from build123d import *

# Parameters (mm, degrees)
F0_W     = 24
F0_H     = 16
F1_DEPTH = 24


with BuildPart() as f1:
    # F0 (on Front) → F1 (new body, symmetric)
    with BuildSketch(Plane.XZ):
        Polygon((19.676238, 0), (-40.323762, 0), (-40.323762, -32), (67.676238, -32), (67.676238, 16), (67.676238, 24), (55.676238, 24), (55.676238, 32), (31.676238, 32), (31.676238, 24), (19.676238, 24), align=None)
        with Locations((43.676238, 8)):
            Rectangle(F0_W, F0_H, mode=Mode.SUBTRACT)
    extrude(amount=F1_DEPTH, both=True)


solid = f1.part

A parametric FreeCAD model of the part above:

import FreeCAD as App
import Part
import Sketcher


def add_polygon(sketch, points):
    """Adds a closed chain of lines whose ends are joined by coincident constraints."""
    first, n = sketch.GeometryCount, len(points)
    for a, b in zip(points, points[1:] + points[:1]):
        sketch.addGeometry(Part.LineSegment(App.Vector(*a, 0), App.Vector(*b, 0)), False)
    for i in range(n):
        sketch.addConstraint(Sketcher.Constraint("Coincident", first + i, 2, first + (i + 1) % n, 1))

doc = App.newDocument("Part")
params = doc.addObject("Spreadsheet::Sheet", "Params")
for row, (alias, value) in enumerate([
    ("sketch1_width", "60 mm"),
    ("sketch1_width2", "108 mm"),
    ("sketch1_width3", "12 mm"),
    ("sketch1_height", "32 mm"),
    ("sketch1_height2", "8 mm"),
    ("pad1_length", "48 mm"),
], start=1):
    params.set(f"A{row}", alias)
    params.set(f"B{row}", "=" + value)
    params.setAlias(f"B{row}", alias)

body = doc.addObject("PartDesign::Body", "Body")

# Sketch on XZ plane
sketch1 = body.newObject("Sketcher::SketchObject", "Sketch")
sketch1.AttachmentSupport = (doc.getObject("XZ_Plane"), [""])
sketch1.MapMode = "FlatFace"
add_polygon(sketch1, [(19.676238, 0), (-40.323762, 0), (-40.323762, -32), (67.676238, -32), (67.676238, 24), (55.676238, 24), (55.676238, 32), (31.676238, 32), (31.676238, 24), (19.676238, 24)])  # lines 0-9
add_polygon(sketch1, [(55.676238, 0), (31.676238, 0), (31.676238, 16), (55.676238, 16)])  # lines 10-13
sketch1.addConstraint(Sketcher.Constraint("Horizontal", 0))
sketch1.addConstraint(Sketcher.Constraint("Vertical", 1))
sketch1.addConstraint(Sketcher.Constraint("Horizontal", 2))
sketch1.addConstraint(Sketcher.Constraint("Vertical", 3))
sketch1.addConstraint(Sketcher.Constraint("Horizontal", 4))
sketch1.addConstraint(Sketcher.Constraint("Vertical", 5))
sketch1.addConstraint(Sketcher.Constraint("Horizontal", 6))
sketch1.addConstraint(Sketcher.Constraint("Vertical", 7))
sketch1.addConstraint(Sketcher.Constraint("Horizontal", 8))
sketch1.addConstraint(Sketcher.Constraint("Vertical", 9))
sketch1.addConstraint(Sketcher.Constraint("Horizontal", 10))
sketch1.addConstraint(Sketcher.Constraint("Vertical", 11))
sketch1.addConstraint(Sketcher.Constraint("Horizontal", 12))
sketch1.addConstraint(Sketcher.Constraint("Vertical", 13))
sketch1.addConstraint(Sketcher.Constraint("PointOnObject", 0, 2, -1))
sketch1.addConstraint(Sketcher.Constraint("PointOnObject", 10, 2, -1))
sketch1.addConstraint(Sketcher.Constraint("Horizontal", 4, 2, 7, 2))
sketch1.addConstraint(Sketcher.Constraint("Vertical", 7, 2, 10, 2))
sketch1.addConstraint(Sketcher.Constraint("Vertical", 5, 2, 12, 2))
sketch1.addConstraint(Sketcher.Constraint("Equal", 4, 8))
sketch1.addConstraint(Sketcher.Constraint("Equal", 12, 9))
sketch1.addConstraint(Sketcher.Constraint("DistanceX", 0, 2, 0, 1, 60.0))
sketch1.addConstraint(Sketcher.Constraint("DistanceX", 2, 1, 2, 2, 108.0))
sketch1.addConstraint(Sketcher.Constraint("DistanceX", 4, 2, 4, 1, 12.0))
sketch1.addConstraint(Sketcher.Constraint("DistanceY", 1, 2, 1, 1, 32.0))
sketch1.addConstraint(Sketcher.Constraint("DistanceY", 5, 1, 5, 2, 8.0))
sketch1.addConstraint(Sketcher.Constraint("DistanceY", 11, 1, 11, 2, 16.0))
sketch1.addConstraint(Sketcher.Constraint("DistanceX", -1, 1, 6, 2, 31.676238))
sketch1.setExpression("Constraints[35]", "Params.sketch1_width")
sketch1.setExpression("Constraints[36]", "Params.sketch1_width2")
sketch1.setExpression("Constraints[37]", "Params.sketch1_width3")
sketch1.setExpression("Constraints[38]", "Params.sketch1_height")
sketch1.setExpression("Constraints[39]", "Params.sketch1_height2")
pad1 = body.newObject("PartDesign::Pad", "Pad")
pad1.Profile = sketch1
pad1.setExpression("Length", "Params.pad1_length")
pad1.Midplane = True

doc.recompute()
